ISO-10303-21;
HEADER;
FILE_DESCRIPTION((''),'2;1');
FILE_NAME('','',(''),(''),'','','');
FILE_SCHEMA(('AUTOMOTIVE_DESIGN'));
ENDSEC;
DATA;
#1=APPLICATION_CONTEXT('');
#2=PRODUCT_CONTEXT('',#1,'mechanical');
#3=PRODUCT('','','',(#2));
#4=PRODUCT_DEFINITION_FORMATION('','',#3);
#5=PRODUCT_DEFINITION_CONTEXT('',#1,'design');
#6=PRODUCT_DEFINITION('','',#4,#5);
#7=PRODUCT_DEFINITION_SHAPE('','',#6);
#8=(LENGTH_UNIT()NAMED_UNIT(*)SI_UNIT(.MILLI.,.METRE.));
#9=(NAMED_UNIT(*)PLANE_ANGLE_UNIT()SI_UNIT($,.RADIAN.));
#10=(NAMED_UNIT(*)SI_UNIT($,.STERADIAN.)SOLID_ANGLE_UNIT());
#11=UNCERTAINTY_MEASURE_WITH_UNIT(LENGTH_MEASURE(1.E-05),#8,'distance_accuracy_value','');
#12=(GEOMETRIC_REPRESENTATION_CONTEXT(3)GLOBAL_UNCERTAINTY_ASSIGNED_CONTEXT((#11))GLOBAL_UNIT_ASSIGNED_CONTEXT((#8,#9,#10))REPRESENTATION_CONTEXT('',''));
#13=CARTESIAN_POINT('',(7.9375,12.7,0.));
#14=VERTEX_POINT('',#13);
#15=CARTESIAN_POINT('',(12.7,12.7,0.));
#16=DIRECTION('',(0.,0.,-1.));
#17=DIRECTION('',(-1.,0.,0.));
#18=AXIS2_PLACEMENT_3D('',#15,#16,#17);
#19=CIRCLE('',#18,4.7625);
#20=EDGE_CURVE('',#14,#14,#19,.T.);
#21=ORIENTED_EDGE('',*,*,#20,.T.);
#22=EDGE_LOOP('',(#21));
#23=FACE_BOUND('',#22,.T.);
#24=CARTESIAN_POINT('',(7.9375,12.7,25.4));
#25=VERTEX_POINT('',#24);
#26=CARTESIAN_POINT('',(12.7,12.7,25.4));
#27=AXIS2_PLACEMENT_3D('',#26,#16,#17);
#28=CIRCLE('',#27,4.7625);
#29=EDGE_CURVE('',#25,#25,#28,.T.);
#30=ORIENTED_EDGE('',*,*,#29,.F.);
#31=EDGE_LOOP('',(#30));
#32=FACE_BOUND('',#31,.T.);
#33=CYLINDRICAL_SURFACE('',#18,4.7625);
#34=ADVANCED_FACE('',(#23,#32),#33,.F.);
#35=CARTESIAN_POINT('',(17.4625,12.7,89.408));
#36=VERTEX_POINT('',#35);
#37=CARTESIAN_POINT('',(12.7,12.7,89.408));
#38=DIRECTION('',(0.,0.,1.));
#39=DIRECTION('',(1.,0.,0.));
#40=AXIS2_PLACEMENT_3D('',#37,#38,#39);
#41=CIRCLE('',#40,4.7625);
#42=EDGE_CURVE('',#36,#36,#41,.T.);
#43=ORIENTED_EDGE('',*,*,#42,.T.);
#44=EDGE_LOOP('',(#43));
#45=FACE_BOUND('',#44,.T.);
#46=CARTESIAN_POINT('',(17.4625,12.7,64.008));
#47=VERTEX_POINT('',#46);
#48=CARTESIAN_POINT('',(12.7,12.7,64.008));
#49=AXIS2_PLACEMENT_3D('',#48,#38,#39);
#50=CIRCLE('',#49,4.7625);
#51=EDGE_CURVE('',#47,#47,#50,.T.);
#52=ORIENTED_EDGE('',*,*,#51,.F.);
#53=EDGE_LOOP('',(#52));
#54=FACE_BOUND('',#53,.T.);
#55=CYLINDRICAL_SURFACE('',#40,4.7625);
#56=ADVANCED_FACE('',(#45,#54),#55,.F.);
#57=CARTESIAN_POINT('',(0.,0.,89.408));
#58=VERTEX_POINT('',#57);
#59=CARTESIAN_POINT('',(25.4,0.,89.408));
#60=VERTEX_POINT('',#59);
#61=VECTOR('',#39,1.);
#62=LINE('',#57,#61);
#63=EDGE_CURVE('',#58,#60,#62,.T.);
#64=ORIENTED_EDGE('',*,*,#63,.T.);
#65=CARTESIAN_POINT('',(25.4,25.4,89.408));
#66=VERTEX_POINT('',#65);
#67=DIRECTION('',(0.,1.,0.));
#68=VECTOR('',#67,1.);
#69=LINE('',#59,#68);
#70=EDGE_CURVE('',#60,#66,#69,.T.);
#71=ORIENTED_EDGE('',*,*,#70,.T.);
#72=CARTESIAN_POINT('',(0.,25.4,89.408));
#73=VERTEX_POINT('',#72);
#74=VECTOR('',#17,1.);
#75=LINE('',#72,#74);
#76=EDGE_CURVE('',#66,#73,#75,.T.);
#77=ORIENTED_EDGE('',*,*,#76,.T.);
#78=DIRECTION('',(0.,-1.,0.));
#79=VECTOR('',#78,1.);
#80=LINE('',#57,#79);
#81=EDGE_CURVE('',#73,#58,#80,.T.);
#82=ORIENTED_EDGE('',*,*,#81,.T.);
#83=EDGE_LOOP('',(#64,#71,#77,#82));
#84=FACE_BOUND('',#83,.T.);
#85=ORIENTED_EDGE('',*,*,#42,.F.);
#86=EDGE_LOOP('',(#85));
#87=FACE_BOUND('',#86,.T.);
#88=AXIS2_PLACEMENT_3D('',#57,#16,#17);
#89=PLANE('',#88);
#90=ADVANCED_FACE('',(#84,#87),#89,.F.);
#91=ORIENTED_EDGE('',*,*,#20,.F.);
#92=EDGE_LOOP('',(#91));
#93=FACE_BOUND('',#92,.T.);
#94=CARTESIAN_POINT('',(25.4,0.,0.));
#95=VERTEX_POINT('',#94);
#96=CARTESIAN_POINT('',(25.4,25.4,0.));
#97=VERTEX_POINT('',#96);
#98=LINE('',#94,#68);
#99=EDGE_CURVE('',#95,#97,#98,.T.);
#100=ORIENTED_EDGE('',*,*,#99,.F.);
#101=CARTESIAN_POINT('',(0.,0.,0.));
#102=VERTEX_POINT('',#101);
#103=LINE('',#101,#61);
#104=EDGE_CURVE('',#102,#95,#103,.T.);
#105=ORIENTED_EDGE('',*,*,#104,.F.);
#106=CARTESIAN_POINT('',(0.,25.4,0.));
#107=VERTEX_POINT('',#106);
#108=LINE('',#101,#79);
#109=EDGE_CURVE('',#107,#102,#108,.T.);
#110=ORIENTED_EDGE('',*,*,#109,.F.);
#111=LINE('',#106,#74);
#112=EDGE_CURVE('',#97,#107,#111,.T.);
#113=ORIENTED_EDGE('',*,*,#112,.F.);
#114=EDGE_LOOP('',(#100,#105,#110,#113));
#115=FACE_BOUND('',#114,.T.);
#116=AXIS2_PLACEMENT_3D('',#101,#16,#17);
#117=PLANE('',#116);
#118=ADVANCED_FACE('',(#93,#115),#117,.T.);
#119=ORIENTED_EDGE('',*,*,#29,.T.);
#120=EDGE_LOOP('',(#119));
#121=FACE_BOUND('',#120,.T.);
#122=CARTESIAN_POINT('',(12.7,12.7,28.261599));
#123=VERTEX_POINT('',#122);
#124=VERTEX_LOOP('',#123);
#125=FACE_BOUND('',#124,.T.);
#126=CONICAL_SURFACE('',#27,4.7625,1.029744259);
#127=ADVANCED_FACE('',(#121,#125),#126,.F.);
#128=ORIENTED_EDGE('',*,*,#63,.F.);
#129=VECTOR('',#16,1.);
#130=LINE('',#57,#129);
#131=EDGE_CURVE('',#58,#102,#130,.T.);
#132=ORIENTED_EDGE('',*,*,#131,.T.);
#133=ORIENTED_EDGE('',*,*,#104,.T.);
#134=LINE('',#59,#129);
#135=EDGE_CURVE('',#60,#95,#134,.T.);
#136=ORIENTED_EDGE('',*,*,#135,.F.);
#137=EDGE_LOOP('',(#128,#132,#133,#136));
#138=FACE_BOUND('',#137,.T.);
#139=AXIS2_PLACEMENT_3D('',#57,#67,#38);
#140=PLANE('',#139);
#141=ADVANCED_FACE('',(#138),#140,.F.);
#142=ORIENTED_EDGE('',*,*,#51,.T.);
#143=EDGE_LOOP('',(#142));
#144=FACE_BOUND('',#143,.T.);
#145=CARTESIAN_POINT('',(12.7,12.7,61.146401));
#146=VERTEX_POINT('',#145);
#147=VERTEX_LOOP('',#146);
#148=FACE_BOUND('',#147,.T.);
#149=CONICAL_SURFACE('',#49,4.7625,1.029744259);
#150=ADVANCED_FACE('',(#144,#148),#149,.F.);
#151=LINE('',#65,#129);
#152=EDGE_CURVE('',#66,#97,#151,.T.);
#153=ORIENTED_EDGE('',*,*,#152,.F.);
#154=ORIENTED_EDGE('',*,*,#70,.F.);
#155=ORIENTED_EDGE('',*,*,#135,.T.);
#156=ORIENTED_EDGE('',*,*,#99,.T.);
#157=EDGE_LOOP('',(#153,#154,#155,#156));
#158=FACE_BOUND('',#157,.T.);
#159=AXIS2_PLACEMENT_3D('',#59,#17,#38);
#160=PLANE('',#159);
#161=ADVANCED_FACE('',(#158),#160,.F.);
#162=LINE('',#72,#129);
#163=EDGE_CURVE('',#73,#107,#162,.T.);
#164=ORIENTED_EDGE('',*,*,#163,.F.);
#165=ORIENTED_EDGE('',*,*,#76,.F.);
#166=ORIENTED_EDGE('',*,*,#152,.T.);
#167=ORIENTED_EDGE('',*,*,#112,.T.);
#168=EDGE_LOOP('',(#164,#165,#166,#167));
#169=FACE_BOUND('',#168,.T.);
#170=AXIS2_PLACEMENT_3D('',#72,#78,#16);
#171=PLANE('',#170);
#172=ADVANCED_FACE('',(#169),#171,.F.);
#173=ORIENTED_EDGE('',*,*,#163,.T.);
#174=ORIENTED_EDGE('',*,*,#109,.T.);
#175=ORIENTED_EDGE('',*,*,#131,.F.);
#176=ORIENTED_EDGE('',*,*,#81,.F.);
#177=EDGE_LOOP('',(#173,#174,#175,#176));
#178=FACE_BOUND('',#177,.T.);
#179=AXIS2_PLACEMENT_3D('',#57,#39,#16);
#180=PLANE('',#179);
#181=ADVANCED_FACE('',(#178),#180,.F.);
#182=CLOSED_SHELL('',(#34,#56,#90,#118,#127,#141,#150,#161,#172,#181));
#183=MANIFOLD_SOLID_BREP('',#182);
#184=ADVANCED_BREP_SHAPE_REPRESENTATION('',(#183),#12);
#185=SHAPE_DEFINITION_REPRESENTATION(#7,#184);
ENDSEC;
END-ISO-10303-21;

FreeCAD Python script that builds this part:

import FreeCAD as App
import Part
import Sketcher
from FreeCAD import Vector
Q = App.Units.Quantity

doc = App.newDocument("Part")
body = doc.addObject("PartDesign::Body", "Body")

sketch1 = body.newObject("Sketcher::SketchObject", "Sketch")
sketch1.AttachmentSupport = (doc.getObject("XY_Plane"), [""])
sketch1.MapMode = "FlatFace"
sketch1.addGeometry([
    Part.LineSegment(Vector(0, 25, 0), Vector(0, 0, 0)),
    Part.LineSegment(Vector(0, 0, 0), Vector(25, 0, 0)),
    Part.LineSegment(Vector(25, 0, 0), Vector(25, 25, 0)),
    Part.LineSegment(Vector(25, 25, 0), Vector(0, 25, 0)),
], False)
sketch1.addConstraint([
    Sketcher.Constraint("Coincident", 0, 2, 1, 1),
    Sketcher.Constraint("Coincident", 1, 2, 2, 1),
    Sketcher.Constraint("Coincident", 2, 2, 3, 1),
    Sketcher.Constraint("Coincident", 3, 2, 0, 1),
    Sketcher.Constraint("Vertical", 0),
    Sketcher.Constraint("Horizontal", 1),
    Sketcher.Constraint("Vertical", 2),
    Sketcher.Constraint("Horizontal", 3),
    Sketcher.Constraint("Coincident", 0, 2, -1, 1),
    Sketcher.Constraint("Equal", 3, 0),
    Sketcher.Constraint("DistanceX", 1, 1, 1, 2, Q("1 in")),
])
pad1 = body.newObject("PartDesign::Pad", "Pad")
pad1.Profile = sketch1
pad1.Length = Q("3.52 in")

sketch2 = body.newObject("Sketcher::SketchObject", "Sketch001")
sketch2.AttachmentSupport = (doc.getObject("XY_Plane"), [""])
sketch2.MapMode = "FlatFace"
sketch2.addGeometry(Part.Circle(Vector(12.7, 12.7, 0), Vector(0, 0, 1), 4.8), False)
sketch2.addConstraint([
    Sketcher.Constraint("Diameter", 0, Q("0.375 in")),
    Sketcher.Constraint("DistanceX", -1, 1, 0, 3, Q("0.5 in")),
    Sketcher.Constraint("DistanceY", -1, 1, 0, 3, Q("0.5 in")),
])
doc.recompute()
hole = body.newObject("PartDesign::Hole", "Hole")
hole.Profile = sketch2
hole.ThreadType = "None"
hole.Diameter = Q("0.375 in")
hole.DepthType = "Dimension"
hole.Depth = Q("1 in")
hole.DrillPoint = "Angled"
hole.DrillPointAngle = 118
hole.Reversed = True

sketch3 = body.newObject("Sketcher::SketchObject", "Sketch002")
sketch3.AttachmentSupport = (doc.getObject("XY_Plane"), [""])
sketch3.MapMode = "FlatFace"
sketch3.AttachmentOffset = App.Placement(Vector(0, 0, 3.52 * 25.4), App.Rotation())
sketch3.addGeometry(Part.Circle(Vector(12.7, 12.7, 0), Vector(0, 0, 1), 4.8), False)
sketch3.addConstraint([
    Sketcher.Constraint("Diameter", 0, Q("0.375 in")),
    Sketcher.Constraint("DistanceX", -1, 1, 0, 3, Q("0.5 in")),
    Sketcher.Constraint("DistanceY", -1, 1, 0, 3, Q("0.5 in")),
])
doc.recompute()
hole2 = body.newObject("PartDesign::Hole", "Hole001")
hole2.Profile = sketch3
hole2.ThreadType = "None"
hole2.Diameter = Q("0.375 in")
hole2.DepthType = "Dimension"
hole2.Depth = Q("1 in")
hole2.DrillPoint = "Angled"
hole2.DrillPointAngle = 118

doc.recompute()
